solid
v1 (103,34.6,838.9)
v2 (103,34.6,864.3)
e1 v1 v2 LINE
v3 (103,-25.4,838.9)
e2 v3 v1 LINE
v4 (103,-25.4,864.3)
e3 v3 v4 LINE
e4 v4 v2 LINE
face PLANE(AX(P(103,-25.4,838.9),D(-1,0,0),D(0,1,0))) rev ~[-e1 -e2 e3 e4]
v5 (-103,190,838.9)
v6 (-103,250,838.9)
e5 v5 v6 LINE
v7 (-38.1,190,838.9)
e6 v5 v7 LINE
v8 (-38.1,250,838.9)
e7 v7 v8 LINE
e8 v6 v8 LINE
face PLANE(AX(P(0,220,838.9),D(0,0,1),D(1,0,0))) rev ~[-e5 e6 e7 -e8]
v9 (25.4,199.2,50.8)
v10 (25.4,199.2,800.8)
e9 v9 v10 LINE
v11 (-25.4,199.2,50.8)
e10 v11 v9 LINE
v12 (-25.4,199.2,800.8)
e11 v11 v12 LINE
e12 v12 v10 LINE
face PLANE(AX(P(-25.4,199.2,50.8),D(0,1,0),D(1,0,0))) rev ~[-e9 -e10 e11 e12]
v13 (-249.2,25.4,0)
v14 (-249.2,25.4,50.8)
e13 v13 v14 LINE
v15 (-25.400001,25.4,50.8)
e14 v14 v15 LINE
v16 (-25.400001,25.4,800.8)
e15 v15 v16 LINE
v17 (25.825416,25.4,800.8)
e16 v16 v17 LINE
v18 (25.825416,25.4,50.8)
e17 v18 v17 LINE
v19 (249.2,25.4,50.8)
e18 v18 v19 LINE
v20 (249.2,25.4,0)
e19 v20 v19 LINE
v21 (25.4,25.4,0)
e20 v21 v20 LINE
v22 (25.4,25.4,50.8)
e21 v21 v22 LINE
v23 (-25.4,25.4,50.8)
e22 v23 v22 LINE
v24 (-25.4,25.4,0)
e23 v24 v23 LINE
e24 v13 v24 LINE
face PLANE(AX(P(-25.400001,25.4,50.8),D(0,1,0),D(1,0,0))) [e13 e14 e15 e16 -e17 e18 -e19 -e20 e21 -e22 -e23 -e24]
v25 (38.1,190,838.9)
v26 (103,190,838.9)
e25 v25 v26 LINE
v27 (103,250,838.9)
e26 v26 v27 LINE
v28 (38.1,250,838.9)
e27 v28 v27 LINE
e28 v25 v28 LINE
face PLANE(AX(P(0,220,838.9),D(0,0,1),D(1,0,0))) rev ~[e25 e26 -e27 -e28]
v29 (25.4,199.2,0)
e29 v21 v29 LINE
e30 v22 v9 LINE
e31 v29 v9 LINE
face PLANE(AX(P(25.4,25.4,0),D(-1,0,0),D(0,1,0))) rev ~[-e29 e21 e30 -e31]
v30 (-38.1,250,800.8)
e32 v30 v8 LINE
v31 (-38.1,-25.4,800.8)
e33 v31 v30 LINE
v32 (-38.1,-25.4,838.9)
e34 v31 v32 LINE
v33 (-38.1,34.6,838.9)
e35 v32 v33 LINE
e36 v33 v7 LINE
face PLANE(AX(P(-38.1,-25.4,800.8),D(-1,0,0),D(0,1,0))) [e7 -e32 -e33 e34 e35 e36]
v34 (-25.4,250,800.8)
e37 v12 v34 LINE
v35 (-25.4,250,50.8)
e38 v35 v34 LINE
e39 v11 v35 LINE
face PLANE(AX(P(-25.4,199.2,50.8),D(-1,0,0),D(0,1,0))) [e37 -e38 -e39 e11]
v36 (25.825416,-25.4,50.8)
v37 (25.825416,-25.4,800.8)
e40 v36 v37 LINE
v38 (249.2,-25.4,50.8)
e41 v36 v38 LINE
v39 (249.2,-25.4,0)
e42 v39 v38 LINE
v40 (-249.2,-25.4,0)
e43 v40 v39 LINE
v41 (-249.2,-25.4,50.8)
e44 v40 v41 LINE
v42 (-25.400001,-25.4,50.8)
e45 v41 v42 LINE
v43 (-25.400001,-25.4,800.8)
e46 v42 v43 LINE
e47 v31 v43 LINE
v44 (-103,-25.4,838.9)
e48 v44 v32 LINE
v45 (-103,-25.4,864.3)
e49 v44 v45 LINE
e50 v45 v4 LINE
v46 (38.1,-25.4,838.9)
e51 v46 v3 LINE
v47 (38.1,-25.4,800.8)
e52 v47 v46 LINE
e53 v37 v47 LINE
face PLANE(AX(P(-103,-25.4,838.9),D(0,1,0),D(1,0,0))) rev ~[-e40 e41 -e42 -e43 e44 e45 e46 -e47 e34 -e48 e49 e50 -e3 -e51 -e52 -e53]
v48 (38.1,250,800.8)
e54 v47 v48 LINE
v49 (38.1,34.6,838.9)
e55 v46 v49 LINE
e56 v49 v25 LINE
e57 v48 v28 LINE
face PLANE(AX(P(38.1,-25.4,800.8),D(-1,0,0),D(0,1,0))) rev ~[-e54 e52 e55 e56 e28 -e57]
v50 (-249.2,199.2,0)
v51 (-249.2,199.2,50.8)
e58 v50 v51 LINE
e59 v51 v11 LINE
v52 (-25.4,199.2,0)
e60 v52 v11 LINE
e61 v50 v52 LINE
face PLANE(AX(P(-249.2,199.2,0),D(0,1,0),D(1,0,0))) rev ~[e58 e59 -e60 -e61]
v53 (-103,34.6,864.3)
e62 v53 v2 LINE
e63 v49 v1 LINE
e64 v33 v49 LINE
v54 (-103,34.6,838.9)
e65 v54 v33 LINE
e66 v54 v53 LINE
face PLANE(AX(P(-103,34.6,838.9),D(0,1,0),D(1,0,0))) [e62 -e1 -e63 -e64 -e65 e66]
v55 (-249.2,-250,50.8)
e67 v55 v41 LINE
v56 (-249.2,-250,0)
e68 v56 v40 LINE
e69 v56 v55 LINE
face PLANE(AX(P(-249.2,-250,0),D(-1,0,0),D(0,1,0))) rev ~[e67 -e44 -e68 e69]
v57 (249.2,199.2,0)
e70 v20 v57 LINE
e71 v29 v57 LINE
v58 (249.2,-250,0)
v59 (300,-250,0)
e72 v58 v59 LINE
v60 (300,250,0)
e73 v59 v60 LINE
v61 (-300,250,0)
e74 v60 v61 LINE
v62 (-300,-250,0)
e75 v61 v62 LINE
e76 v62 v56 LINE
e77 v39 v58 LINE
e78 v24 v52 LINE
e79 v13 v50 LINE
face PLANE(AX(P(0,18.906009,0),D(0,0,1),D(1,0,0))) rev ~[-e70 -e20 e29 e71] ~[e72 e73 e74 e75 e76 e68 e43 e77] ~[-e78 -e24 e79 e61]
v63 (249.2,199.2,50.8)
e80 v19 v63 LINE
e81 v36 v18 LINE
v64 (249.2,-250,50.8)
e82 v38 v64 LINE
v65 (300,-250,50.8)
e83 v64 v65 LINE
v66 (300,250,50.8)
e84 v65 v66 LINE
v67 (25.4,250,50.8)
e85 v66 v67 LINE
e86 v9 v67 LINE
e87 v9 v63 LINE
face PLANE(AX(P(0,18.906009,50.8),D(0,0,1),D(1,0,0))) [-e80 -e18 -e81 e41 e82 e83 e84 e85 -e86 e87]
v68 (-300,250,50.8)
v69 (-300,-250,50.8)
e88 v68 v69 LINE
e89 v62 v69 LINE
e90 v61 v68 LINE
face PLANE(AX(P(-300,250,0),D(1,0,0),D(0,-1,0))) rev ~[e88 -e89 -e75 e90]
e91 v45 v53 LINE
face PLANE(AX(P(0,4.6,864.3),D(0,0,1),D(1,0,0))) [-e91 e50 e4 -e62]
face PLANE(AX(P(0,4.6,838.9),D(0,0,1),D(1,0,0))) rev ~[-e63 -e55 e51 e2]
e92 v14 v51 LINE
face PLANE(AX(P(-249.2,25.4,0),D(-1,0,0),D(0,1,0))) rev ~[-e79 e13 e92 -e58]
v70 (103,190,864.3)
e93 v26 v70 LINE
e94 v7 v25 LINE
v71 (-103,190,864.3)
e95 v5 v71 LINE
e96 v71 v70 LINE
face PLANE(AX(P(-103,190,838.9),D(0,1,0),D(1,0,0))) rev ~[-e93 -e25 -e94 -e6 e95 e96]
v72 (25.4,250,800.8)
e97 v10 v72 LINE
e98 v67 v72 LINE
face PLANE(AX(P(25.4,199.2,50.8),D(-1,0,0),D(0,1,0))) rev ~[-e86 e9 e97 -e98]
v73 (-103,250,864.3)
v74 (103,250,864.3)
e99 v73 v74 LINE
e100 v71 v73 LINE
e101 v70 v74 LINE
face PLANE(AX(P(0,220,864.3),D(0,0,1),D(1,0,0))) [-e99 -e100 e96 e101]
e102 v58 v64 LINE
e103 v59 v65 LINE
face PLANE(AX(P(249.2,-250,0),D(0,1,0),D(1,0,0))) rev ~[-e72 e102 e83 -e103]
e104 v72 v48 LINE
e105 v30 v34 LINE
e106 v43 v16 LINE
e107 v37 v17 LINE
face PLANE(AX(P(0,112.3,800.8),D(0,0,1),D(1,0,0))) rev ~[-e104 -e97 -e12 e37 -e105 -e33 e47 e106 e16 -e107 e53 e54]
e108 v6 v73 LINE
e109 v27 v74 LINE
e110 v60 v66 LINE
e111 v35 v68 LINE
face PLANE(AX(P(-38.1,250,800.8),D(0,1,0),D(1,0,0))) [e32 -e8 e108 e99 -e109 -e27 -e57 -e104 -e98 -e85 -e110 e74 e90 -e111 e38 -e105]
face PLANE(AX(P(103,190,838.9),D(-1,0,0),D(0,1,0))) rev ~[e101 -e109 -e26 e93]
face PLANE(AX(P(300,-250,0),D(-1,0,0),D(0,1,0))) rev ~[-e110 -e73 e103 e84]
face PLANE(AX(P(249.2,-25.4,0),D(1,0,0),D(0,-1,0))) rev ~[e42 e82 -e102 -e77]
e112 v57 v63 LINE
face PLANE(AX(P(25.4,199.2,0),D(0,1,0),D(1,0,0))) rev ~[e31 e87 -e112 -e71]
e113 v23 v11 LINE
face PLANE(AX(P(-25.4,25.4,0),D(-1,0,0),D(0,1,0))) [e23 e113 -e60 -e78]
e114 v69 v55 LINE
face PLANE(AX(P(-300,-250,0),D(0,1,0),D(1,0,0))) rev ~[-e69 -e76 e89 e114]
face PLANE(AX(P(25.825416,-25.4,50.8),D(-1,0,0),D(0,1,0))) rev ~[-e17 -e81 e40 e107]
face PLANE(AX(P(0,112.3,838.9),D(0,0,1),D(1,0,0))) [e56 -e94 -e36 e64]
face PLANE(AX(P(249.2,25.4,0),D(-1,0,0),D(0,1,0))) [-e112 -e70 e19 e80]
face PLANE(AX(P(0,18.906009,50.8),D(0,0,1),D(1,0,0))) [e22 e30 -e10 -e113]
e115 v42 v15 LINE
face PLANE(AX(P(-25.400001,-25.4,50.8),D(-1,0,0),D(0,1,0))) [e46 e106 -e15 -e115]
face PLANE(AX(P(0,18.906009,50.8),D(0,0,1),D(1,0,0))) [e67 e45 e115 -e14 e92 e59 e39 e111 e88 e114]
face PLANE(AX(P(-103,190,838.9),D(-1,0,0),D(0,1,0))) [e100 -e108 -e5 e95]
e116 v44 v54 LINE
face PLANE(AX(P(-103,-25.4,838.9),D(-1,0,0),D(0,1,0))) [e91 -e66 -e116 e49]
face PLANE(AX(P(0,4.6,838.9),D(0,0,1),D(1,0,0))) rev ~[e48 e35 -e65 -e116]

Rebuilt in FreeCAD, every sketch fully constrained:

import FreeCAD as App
import Part
import Sketcher
from FreeCAD import Vector


def add_polygon(sketch, points):
    """Adds a closed chain of lines whose ends are joined by coincident constraints."""
    first, n = sketch.GeometryCount, len(points)
    for a, b in zip(points, points[1:] + points[:1]):
        sketch.addGeometry(Part.LineSegment(App.Vector(*a, 0), App.Vector(*b, 0)), False)
    for i in range(n):
        sketch.addConstraint(Sketcher.Constraint("Coincident", first + i, 2, first + (i + 1) % n, 1))

doc = App.newDocument("Part")
params = doc.addObject("Spreadsheet::Sheet", "Params")
for row, (alias, value) in enumerate([
    ("sketch1_width", "600 mm"),
    ("sketch1_height", "500 mm"),
    ("sketch1_width2", "50.8 mm"),
    ("sketch1_width3", "223.8 mm"),
    ("sketch1_height2", "224.6 mm"),
    ("pad1_length", "50.8 mm"),
    ("sketch2_width", "50.8 mm"),
    ("pad2_length", "750 mm"),
    ("sketch3_width", "76.2 mm"),
    ("sketch3_height", "275.4 mm"),
    ("pad3_length", "38.1 mm"),
    ("sketch4_width", "206 mm"),
    ("sketch4_height", "60 mm"),
    ("pad4_length", "25.4 mm"),
], start=1):
    params.set(f"A{row}", alias)
    params.set(f"B{row}", "=" + value)
    params.setAlias(f"B{row}", alias)

body = doc.addObject("PartDesign::Body", "Body")

# Sketch on XY plane
sketch1 = doc.addObject("Sketcher::SketchObject", "Sketch")
body.addObject(sketch1)
sketch1.AttachmentSupport = (doc.XY_Plane, [""])
sketch1.MapMode = "FlatFace"
add_polygon(sketch1, [(-300, 250), (-300, -250), (-249.2, -250), (-249.2, -25.4), (249.2, -25.4), (249.2, -250), (300, -250), (300, 250)])  # lines 0-7
add_polygon(sketch1, [(-25.4, 25.4), (-249.2, 25.4), (-249.2, 199.2), (-25.4, 199.2)])  # lines 8-11
add_polygon(sketch1, [(249.2, 25.4), (25.4, 25.4), (25.4, 199.2), (249.2, 199.2)])  # lines 12-15
sketch1.addConstraint([
    Sketcher.Constraint("Vertical", 0),
    Sketcher.Constraint("Horizontal", 1),
    Sketcher.Constraint("Vertical", 2),
    Sketcher.Constraint("Horizontal", 3),
    Sketcher.Constraint("Vertical", 4),
    Sketcher.Constraint("Horizontal", 5),
    Sketcher.Constraint("Vertical", 6),
    Sketcher.Constraint("Horizontal", 7),
    Sketcher.Constraint("Horizontal", 8),
    Sketcher.Constraint("Vertical", 9),
    Sketcher.Constraint("Horizontal", 10),
    Sketcher.Constraint("Vertical", 11),
    Sketcher.Constraint("Horizontal", 12),
    Sketcher.Constraint("Vertical", 13),
    Sketcher.Constraint("Horizontal", 14),
    Sketcher.Constraint("Vertical", 15),
    Sketcher.Constraint("Symmetric", 0, 2, 6, 2, -1, 1),
    Sketcher.Constraint("Symmetric", 3, 2, 8, 2, -1, 1),
    Sketcher.Constraint("Symmetric", 2, 2, 15, 2, -1, 1),
    Sketcher.Constraint("Symmetric", 1, 2, 4, 2, -2),
    Sketcher.Constraint("Symmetric", 10, 2, 13, 2, -2),
    Sketcher.Constraint("DistanceX", 7, 2, 7, 1, 600.0),
    Sketcher.Constraint("DistanceY", 0, 2, 0, 1, 500.0),
    Sketcher.Constraint("DistanceX", 1, 1, 1, 2, 50.8),
    Sketcher.Constraint("DistanceX", 8, 2, 8, 1, 223.8),
    Sketcher.Constraint("DistanceY", 2, 1, 2, 2, 224.6),
    Sketcher.Constraint("DistanceY", 9, 1, 9, 2, 173.8),
])
sketch1.setExpression("Constraints[37]", "Params.sketch1_width")
sketch1.setExpression("Constraints[38]", "Params.sketch1_height")
sketch1.setExpression("Constraints[39]", "Params.sketch1_width2")
sketch1.setExpression("Constraints[40]", "Params.sketch1_width3")
sketch1.setExpression("Constraints[41]", "Params.sketch1_height2")
pad1 = doc.addObject("PartDesign::Pad", "Pad")
body.addObject(pad1)
pad1.Profile = sketch1
pad1.setExpression("Length", "Params.pad1_length")

# Sketch on XY plane
sketch2 = doc.addObject("Sketcher::SketchObject", "Sketch001")
body.addObject(sketch2)
sketch2.AttachmentSupport = (doc.XY_Plane, [""])
sketch2.MapMode = "FlatFace"
sketch2.AttachmentOffset = App.Placement(Vector(0, 0, 50.8), App.Rotation())
add_polygon(sketch2, [(-25.400001, 25.4), (-25.400001, -25.4), (25.825416, -25.4), (25.825416, 25.4)])  # lines 0-3
add_polygon(sketch2, [(-25.4, 250), (-25.4, 199.2), (25.4, 199.2), (25.4, 250)])  # lines 4-7
sketch2.addConstraint([
    Sketcher.Constraint("Vertical", 0),
    Sketcher.Constraint("Horizontal", 1),
    Sketcher.Constraint("Vertical", 2),
    Sketcher.Constraint("Horizontal", 3),
    Sketcher.Constraint("Vertical", 4),
    Sketcher.Constraint("Horizontal", 5),
    Sketcher.Constraint("Vertical", 6),
    Sketcher.Constraint("Horizontal", 7),
    Sketcher.Constraint("Vertical", 3, 2, 4, 2),
    Sketcher.Constraint("Equal", 7, 0),
    Sketcher.Constraint("Equal", 2, 4),
    Sketcher.Constraint("DistanceX", 5, 1, 5, 2, 50.8),
    Sketcher.Constraint("DistanceY", -1, 1, 6, 2, 250.0),
    Sketcher.Constraint("DistanceX", 0, 2, -1, 1, 25.400001),
    Sketcher.Constraint("DistanceY", 0, 2, -1, 1, 25.4),
    Sketcher.Constraint("DistanceX", 1, 1, 1, 2, 51.225417),
])
sketch2.setExpression("Constraints[19]", "Params.sketch2_width")
pad2 = doc.addObject("PartDesign::Pad", "Pad001")
body.addObject(pad2)
pad2.Profile = sketch2
pad2.setExpression("Length", "Params.pad2_length")

# Sketch on XY plane
sketch3 = doc.addObject("Sketcher::SketchObject", "Sketch002")
body.addObject(sketch3)
sketch3.AttachmentSupport = (doc.XY_Plane, [""])
sketch3.MapMode = "FlatFace"
sketch3.AttachmentOffset = App.Placement(Vector(0, 0, 800.8), App.Rotation())
add_polygon(sketch3, [(-38.1, 250), (-38.1, -25.4), (38.1, -25.4), (38.1, 250)])  # lines 0-3
sketch3.addConstraint([
    Sketcher.Constraint("Vertical", 0),
    Sketcher.Constraint("Horizontal", 1),
    Sketcher.Constraint("Vertical", 2),
    Sketcher.Constraint("Horizontal", 3),
    Sketcher.Constraint("DistanceX", 1, 1, 1, 2, 76.2),
    Sketcher.Constraint("DistanceY", 0, 2, 0, 1, 275.4),
    Sketcher.Constraint("DistanceY", -1, 1, 2, 2, 250.0),
    Sketcher.Constraint("DistanceX", 0, 2, -1, 1, 38.1),
])
sketch3.setExpression("Constraints[8]", "Params.sketch3_width")
sketch3.setExpression("Constraints[9]", "Params.sketch3_height")
pad3 = doc.addObject("PartDesign::Pad", "Pad002")
body.addObject(pad3)
pad3.Profile = sketch3
pad3.setExpression("Length", "Params.pad3_length")

# Sketch on XY plane
sketch4 = doc.addObject("Sketcher::SketchObject", "Sketch003")
body.addObject(sketch4)
sketch4.AttachmentSupport = (doc.XY_Plane, [""])
sketch4.MapMode = "FlatFace"
sketch4.AttachmentOffset = App.Placement(Vector(0, 0, 838.9), App.Rotation())
add_polygon(sketch4, [(-103, 34.6), (-103, -25.4), (103, -25.4), (103, 34.6)])  # lines 0-3
add_polygon(sketch4, [(-103, 250), (-103, 190), (103, 190), (103, 250)])  # lines 4-7
sketch4.addConstraint([
    Sketcher.Constraint("Vertical", 0),
    Sketcher.Constraint("Horizontal", 1),
    Sketcher.Constraint("Vertical", 2),
    Sketcher.Constraint("Horizontal", 3),
    Sketcher.Constraint("Vertical", 4),
    Sketcher.Constraint("Horizontal", 5),
    Sketcher.Constraint("Vertical", 6),
    Sketcher.Constraint("Horizontal", 7),
    Sketcher.Constraint("Vertical", 3, 2, 4, 2),
    Sketcher.Constraint("Vertical", 2, 2, 5, 2),
    Sketcher.Constraint("Equal", 2, 4),
    Sketcher.Constraint("DistanceX", 1, 1, 1, 2, 206.0),
    Sketcher.Constraint("DistanceY", 0, 2, 0, 1, 60.0),
    Sketcher.Constraint("DistanceX", 0, 2, -1, 1, 103.0),
    Sketcher.Constraint("DistanceY", -1, 1, 4, 2, 190.0),
    Sketcher.Constraint("DistanceY", 0, 2, -1, 1, 25.4),
])
sketch4.setExpression("Constraints[19]", "Params.sketch4_width")
sketch4.setExpression("Constraints[20]", "Params.sketch4_height")
pad4 = doc.addObject("PartDesign::Pad", "Pad003")
body.addObject(pad4)
pad4.Profile = sketch4
pad4.setExpression("Length", "Params.pad4_length")

doc.recompute()
